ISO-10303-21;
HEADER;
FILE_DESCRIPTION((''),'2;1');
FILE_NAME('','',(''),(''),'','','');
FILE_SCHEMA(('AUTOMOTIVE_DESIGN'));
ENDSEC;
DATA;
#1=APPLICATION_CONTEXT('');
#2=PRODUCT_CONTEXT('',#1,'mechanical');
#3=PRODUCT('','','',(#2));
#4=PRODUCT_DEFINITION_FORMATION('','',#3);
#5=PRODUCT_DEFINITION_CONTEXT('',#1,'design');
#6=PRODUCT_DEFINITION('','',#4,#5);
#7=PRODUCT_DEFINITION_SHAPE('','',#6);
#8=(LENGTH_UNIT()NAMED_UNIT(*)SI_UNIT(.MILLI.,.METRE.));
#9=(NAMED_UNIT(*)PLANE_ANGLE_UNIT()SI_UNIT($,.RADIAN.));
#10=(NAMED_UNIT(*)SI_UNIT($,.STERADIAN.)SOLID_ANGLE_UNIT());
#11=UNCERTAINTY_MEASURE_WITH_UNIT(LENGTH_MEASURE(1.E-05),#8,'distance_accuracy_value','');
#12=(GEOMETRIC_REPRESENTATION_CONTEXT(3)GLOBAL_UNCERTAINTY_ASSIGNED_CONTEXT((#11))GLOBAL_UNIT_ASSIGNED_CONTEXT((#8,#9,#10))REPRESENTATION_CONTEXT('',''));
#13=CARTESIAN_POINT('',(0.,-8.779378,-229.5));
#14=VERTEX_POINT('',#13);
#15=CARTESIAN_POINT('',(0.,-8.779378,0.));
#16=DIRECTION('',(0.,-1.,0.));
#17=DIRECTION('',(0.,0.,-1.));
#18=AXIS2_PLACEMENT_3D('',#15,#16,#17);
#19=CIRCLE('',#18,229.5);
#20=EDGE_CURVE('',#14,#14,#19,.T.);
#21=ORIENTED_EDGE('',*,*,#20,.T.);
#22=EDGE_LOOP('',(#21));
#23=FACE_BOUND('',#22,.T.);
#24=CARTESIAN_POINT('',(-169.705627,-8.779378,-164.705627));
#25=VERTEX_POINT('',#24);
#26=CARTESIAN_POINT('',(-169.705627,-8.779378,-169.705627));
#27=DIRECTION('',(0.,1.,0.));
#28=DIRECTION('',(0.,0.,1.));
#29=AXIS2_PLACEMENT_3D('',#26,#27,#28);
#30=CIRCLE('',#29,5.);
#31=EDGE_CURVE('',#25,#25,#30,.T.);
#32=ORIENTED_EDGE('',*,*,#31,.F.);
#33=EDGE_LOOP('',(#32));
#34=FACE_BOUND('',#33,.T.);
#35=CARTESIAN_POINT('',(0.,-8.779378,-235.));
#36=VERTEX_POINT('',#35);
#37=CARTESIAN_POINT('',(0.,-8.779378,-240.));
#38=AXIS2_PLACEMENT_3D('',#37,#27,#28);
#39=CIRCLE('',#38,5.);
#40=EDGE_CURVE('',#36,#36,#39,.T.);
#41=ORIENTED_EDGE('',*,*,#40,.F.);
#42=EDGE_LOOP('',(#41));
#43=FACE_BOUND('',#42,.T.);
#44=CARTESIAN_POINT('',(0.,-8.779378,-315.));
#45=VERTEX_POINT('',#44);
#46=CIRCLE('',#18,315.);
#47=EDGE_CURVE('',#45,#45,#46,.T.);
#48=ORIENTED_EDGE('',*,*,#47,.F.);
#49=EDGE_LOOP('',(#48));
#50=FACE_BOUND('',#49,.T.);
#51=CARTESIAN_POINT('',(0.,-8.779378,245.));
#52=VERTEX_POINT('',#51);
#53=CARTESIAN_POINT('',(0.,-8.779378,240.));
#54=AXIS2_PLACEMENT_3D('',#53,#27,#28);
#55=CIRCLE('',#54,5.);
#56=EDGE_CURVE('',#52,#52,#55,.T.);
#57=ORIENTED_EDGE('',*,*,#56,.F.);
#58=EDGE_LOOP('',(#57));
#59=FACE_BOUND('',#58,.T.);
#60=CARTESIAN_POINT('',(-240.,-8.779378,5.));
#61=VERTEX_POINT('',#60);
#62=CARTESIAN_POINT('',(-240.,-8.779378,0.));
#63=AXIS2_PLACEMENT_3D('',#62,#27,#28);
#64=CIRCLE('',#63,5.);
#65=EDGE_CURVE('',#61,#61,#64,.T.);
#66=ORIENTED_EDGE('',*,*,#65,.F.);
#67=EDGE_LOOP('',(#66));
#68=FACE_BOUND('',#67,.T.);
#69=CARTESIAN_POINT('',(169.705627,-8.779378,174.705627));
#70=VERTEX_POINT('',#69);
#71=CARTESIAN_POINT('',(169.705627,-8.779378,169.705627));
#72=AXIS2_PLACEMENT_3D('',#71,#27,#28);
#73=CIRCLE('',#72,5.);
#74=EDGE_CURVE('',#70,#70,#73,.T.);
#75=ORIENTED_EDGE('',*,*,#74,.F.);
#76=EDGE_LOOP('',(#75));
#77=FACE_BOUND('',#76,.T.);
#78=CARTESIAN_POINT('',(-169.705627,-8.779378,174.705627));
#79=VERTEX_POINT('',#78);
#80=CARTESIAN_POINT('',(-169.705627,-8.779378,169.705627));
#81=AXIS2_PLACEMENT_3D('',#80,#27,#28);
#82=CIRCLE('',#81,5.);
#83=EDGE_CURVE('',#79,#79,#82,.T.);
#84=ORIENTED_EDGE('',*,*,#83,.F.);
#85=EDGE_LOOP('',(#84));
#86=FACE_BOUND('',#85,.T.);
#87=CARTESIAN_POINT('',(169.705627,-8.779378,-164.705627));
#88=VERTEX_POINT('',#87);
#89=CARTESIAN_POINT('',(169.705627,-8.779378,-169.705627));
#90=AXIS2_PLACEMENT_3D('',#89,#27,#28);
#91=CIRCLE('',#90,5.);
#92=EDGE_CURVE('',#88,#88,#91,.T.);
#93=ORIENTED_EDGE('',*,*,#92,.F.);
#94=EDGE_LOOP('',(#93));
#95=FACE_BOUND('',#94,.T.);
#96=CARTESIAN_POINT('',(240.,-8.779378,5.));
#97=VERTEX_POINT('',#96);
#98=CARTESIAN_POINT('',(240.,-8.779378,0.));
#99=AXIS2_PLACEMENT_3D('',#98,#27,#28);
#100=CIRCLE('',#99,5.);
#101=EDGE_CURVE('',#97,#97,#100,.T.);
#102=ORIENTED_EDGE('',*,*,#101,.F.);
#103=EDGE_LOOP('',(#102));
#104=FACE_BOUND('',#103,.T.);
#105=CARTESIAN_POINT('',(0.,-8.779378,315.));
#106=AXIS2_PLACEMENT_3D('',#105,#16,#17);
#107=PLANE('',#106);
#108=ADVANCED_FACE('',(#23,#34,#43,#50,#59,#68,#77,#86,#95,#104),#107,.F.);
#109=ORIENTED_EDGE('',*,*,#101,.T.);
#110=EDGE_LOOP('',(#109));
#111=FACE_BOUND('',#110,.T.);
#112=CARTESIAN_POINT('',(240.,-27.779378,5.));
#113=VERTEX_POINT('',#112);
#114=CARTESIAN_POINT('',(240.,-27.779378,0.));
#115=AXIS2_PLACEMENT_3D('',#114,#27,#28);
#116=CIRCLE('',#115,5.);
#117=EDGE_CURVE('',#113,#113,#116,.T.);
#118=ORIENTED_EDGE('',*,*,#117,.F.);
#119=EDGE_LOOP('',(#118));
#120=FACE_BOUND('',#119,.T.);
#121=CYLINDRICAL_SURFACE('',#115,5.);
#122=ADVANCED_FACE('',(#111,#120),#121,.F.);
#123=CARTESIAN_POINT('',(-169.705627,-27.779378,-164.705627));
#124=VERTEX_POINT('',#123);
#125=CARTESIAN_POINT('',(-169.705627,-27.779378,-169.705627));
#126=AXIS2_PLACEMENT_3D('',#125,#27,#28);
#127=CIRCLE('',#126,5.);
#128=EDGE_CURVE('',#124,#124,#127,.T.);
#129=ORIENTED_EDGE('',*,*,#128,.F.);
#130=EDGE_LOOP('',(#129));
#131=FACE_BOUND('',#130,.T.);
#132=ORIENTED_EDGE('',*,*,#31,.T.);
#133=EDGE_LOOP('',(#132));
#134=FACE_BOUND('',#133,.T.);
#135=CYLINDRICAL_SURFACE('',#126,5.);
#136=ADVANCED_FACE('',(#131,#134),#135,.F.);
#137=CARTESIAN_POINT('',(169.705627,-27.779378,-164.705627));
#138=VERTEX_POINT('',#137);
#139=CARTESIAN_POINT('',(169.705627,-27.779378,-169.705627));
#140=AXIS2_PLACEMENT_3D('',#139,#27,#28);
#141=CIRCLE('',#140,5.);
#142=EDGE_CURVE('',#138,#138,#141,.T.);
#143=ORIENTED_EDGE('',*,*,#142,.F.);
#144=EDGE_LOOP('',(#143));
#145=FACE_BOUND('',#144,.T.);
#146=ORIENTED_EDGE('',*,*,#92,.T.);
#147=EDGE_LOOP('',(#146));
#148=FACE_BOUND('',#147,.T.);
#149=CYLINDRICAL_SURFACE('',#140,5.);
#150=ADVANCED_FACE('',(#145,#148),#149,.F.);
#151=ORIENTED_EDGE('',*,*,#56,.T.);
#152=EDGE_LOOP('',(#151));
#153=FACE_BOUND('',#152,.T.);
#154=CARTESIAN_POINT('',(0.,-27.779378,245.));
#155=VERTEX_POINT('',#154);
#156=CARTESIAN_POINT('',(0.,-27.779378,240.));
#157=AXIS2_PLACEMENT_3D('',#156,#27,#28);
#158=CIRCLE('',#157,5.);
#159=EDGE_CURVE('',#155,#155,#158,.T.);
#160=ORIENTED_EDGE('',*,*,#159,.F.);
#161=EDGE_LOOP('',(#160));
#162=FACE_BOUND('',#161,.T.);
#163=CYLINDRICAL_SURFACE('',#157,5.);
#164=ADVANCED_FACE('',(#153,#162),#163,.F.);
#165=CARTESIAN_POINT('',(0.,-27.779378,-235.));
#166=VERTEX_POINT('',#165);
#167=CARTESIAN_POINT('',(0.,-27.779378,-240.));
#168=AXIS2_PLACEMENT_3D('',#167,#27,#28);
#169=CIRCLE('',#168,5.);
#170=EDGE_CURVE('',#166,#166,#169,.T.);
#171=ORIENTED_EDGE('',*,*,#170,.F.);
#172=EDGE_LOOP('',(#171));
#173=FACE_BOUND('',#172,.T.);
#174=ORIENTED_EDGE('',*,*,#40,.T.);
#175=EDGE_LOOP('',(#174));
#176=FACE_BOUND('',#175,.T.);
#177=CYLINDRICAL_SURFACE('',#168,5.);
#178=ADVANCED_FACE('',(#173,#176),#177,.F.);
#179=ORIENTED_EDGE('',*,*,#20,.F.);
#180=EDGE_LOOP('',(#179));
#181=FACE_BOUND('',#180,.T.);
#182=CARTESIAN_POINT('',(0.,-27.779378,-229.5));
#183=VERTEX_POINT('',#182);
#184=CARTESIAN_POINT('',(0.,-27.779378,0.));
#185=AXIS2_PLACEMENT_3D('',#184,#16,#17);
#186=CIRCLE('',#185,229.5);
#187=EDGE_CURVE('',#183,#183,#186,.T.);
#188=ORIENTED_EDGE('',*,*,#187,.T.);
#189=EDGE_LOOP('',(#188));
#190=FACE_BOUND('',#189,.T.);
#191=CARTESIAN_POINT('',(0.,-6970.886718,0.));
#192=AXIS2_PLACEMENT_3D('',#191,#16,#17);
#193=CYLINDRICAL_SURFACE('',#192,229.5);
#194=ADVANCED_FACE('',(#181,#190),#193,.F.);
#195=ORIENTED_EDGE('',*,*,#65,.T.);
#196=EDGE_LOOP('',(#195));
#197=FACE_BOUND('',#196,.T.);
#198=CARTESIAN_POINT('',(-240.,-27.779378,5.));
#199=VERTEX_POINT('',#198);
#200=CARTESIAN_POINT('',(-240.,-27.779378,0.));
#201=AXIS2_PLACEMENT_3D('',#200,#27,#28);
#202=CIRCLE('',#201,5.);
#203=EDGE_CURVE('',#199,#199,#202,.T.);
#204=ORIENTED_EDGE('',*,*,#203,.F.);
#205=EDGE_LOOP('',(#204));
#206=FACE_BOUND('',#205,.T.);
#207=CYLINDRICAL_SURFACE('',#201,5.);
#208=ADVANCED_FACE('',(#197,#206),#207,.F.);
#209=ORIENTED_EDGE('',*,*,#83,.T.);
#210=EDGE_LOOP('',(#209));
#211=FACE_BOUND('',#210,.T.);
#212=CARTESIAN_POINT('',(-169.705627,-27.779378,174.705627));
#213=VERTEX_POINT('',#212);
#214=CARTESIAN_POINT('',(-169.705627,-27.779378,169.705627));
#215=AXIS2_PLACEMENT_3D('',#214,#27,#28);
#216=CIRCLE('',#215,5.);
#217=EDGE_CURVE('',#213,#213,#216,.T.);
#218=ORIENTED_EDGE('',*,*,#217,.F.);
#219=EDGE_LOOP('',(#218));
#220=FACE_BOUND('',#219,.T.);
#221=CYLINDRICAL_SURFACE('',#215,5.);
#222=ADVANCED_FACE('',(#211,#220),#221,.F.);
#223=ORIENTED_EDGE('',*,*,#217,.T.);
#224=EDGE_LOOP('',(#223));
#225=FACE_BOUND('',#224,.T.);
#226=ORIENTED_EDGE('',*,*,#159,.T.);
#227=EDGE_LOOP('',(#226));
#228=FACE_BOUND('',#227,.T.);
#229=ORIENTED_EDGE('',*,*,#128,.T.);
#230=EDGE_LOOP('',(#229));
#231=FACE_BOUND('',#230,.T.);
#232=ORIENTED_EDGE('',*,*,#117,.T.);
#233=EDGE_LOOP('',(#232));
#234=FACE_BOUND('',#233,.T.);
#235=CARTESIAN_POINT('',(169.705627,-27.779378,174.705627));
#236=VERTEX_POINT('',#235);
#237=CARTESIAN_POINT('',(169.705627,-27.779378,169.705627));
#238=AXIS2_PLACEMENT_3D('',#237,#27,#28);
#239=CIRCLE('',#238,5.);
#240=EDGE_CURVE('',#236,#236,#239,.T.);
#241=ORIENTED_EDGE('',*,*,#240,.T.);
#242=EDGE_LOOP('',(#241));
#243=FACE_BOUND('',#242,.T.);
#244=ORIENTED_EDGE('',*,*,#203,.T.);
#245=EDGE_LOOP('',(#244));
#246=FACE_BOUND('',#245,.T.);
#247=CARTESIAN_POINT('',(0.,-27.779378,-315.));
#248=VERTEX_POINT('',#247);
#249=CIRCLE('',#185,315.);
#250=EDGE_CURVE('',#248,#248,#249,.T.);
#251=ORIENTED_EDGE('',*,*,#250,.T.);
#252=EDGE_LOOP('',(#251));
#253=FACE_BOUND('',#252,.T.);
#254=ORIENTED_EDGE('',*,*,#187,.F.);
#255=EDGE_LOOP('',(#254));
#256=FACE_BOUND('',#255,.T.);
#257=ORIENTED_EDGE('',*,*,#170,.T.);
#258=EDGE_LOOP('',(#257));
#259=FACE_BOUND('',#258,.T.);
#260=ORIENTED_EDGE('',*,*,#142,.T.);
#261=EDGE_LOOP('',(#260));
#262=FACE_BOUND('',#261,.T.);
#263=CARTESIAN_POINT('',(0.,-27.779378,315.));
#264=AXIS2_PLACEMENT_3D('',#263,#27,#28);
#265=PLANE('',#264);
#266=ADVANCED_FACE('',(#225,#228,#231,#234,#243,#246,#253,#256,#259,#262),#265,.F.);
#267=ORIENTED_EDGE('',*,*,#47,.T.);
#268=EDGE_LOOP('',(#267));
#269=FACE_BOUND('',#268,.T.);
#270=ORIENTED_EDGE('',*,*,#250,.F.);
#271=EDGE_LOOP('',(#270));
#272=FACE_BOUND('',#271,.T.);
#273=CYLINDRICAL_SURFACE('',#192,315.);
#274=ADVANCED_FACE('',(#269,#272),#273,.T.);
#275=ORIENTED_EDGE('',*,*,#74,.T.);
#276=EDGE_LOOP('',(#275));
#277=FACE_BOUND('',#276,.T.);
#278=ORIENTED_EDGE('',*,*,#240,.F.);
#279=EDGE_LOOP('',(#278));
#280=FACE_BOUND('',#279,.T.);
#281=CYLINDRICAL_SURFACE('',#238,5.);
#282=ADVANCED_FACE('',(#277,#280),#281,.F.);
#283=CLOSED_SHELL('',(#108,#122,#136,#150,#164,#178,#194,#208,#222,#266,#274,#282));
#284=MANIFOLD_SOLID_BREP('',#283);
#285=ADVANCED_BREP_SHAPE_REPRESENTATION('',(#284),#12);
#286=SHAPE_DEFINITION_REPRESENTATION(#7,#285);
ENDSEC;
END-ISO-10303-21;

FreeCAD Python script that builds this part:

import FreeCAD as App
import Part
import Sketcher
from FreeCAD import Vector

doc = App.newDocument("Part")
body = doc.addObject("PartDesign::Body", "Body")

sketch1 = doc.addObject("Sketcher::SketchObject", "Sketch")
body.addObject(sketch1)
sketch1.AttachmentSupport = (doc.YZ_Plane, [""])
sketch1.MapMode = "FlatFace"
sketch1.addGeometry([
    Part.LineSegment(Vector(-9, 315, 0), Vector(-28, 315, 0)),
    Part.LineSegment(Vector(-28, 315, 0), Vector(-28, 230, 0)),
    Part.LineSegment(Vector(-28, 230, 0), Vector(-9, 230, 0)),
    Part.LineSegment(Vector(-9, 230, 0), Vector(-9, 315, 0)),
], False)
sketch1.addConstraint([
    Sketcher.Constraint("Coincident", 0, 2, 1, 1),
    Sketcher.Constraint("Coincident", 1, 2, 2, 1),
    Sketcher.Constraint("Coincident", 2, 2, 3, 1),
    Sketcher.Constraint("Coincident", 3, 2, 0, 1),
    Sketcher.Constraint("Horizontal", 0),
    Sketcher.Constraint("Vertical", 1),
    Sketcher.Constraint("Horizontal", 2),
    Sketcher.Constraint("Vertical", 3),
    Sketcher.Constraint("DistanceX", 0, 2, 0, 1, 19.0),
    Sketcher.Constraint("DistanceY", 1, 2, 1, 1, 85.5),
    Sketcher.Constraint("DistanceY", -1, 1, 0, 2, 315.0),
    Sketcher.Constraint("DistanceX", 0, 2, -1, 1, 27.779378),
])
revolution = doc.addObject("PartDesign::Revolution", "Revolution")
body.addObject(revolution)
revolution.Profile = sketch1
revolution.ReferenceAxis = (sketch1, ["H_Axis"])
revolution.Angle = 360

sketch2 = doc.addObject("Sketcher::SketchObject", "Sketch001")
body.addObject(sketch2)
sketch2.AttachmentSupport = (doc.XZ_Plane, [""])
sketch2.MapMode = "FlatFace"
sketch2.AttachmentOffset = App.Placement(Vector(0, 0, 8.779378), App.Rotation())
sketch2.addGeometry([
    Part.Circle(Vector(0, -240, 0), Vector(0, 0, 1), 5),
    Part.Circle(Vector(170, -170, 0), Vector(0, 0, 1), 5),
    Part.Circle(Vector(240, 0, 0), Vector(0, 0, 1), 5),
    Part.Circle(Vector(170, 170, 0), Vector(0, 0, 1), 5),
    Part.Circle(Vector(0, 240, 0), Vector(0, 0, 1), 5),
    Part.Circle(Vector(-170, 170, 0), Vector(0, 0, 1), 5),
    Part.Circle(Vector(-240, 0, 0), Vector(0, 0, 1), 5),
    Part.Circle(Vector(-170, -170, 0), Vector(0, 0, 1), 5),
], False)
sketch2.addConstraint([
    Sketcher.Constraint("Equal", 0, 1),
    Sketcher.Constraint("Equal", 1, 2),
    Sketcher.Constraint("Equal", 2, 3),
    Sketcher.Constraint("Equal", 3, 4),
    Sketcher.Constraint("Equal", 4, 5),
    Sketcher.Constraint("Equal", 5, 6),
    Sketcher.Constraint("Equal", 6, 7),
    Sketcher.Constraint("Symmetric", 0, 3, 4, 3, -1, 1),
    Sketcher.Constraint("Symmetric", 1, 3, 5, 3, -1, 1),
    Sketcher.Constraint("Symmetric", 2, 3, 6, 3, -1, 1),
    Sketcher.Constraint("Symmetric", 3, 3, 7, 3, -1, 1),
    Sketcher.Constraint("Symmetric", 3, 3, 5, 3, -2),
    Sketcher.Constraint("PointOnObject", 0, 3, -2),
    Sketcher.Constraint("PointOnObject", 2, 3, -1),
    Sketcher.Constraint("Diameter", 0, 10.0),
    Sketcher.Constraint("DistanceY", 0, 3, -1, 1, 240.0),
    Sketcher.Constraint("DistanceX", -1, 1, 2, 3, 240.0),
    Sketcher.Constraint("DistanceX", -1, 1, 1, 3, 169.705627),
    Sketcher.Constraint("DistanceY", 1, 3, -1, 1, 169.705627),
])
pocket1 = doc.addObject("PartDesign::Pocket", "Pocket")
body.addObject(pocket1)
pocket1.Profile = sketch2
pocket1.Type = "ThroughAll"
pocket1.Reversed = True

doc.recompute()
